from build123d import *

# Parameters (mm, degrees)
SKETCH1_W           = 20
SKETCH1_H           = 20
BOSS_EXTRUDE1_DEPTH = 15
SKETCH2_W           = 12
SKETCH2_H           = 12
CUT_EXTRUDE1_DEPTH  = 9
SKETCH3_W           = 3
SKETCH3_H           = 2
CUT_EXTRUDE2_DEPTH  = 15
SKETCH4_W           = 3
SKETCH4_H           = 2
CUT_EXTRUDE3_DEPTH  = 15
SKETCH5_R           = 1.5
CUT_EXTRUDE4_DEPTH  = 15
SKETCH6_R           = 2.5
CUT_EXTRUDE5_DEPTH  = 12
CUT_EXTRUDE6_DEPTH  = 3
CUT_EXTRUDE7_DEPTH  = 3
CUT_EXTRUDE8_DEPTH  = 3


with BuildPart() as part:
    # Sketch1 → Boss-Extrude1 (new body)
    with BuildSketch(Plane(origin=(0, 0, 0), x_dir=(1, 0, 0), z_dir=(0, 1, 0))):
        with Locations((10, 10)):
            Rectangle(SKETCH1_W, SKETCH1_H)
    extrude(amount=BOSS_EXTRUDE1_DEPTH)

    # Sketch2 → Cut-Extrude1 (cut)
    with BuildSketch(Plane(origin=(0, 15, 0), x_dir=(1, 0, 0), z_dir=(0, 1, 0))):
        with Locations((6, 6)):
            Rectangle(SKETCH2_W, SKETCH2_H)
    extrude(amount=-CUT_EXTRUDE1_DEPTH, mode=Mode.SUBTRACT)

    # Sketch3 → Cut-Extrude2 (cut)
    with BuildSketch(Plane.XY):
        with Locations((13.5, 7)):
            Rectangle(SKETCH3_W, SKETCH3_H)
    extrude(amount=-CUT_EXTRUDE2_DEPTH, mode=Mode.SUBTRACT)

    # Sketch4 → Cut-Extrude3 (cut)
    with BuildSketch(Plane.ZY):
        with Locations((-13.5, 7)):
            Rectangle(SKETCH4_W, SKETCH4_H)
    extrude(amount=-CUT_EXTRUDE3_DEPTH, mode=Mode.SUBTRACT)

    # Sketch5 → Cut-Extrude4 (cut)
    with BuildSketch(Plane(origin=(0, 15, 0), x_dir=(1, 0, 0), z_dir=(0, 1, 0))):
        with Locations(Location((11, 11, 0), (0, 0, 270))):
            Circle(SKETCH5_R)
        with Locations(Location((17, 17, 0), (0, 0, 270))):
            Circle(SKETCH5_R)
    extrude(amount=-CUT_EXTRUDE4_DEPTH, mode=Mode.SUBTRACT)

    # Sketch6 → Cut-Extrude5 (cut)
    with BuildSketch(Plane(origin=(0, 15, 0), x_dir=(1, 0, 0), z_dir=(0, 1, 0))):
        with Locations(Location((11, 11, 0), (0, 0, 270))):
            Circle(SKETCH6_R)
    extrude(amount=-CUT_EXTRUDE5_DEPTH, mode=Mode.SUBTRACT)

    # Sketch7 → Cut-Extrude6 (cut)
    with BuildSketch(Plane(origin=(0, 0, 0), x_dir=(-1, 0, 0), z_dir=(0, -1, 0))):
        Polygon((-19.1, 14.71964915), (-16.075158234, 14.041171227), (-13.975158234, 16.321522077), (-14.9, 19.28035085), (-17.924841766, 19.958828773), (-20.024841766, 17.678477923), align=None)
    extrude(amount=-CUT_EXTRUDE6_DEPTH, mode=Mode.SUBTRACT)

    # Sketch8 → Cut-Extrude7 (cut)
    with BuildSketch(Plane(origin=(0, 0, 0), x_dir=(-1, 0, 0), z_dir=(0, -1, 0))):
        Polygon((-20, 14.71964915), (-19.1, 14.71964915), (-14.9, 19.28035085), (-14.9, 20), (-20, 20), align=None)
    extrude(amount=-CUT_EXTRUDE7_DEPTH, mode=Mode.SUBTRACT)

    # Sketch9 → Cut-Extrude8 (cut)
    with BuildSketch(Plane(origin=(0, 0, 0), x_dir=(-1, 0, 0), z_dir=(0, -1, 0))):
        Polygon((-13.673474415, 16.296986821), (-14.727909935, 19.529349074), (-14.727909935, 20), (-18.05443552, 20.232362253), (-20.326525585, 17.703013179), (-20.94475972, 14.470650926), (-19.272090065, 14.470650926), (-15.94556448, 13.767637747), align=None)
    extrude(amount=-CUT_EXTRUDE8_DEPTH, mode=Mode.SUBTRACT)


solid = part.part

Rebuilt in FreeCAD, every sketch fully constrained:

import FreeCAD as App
import Part
import Sketcher
from FreeCAD import Vector
Q = App.Units.Quantity

doc = App.newDocument("Part")
params = doc.addObject("Spreadsheet::Sheet", "Params")
for row, (alias, value) in enumerate([
    ("sketch1_width", "20 mm"),
    ("pad1_length", "15 mm"),
    ("sketch2_width", "12 mm"),
    ("pocket1_length", "9 mm"),
    ("sketch3_width", "3 mm"),
    ("sketch3_height", "2 mm"),
    ("pocket2_length", "15 mm"),
    ("sketch4_width", "2 mm"),
    ("sketch4_height", "3 mm"),
    ("pocket3_length", "15 mm"),
    ("sketch5_diameter", "3 mm"),
    ("pocket4_length", "15 mm"),
    ("sketch6_diameter", "5 mm"),
    ("pocket5_length", "12 mm"),
    ("sketch7_length", "3.1 mm"),
    ("pocket6_length", "3 mm"),
    ("sketch8_width", "0.9 mm"),
    ("sketch8_width2", "5.1 mm"),
    ("sketch8_length", "6.2 mm"),
    ("pocket7_length", "3 mm"),
    ("sketch9_length", "3.4 mm"),
    ("pocket8_length", "3 mm"),
], start=1):
    params.set(f"A{row}", alias)
    params.set(f"B{row}", "=" + value)
    params.setAlias(f"B{row}", alias)

body = doc.addObject("PartDesign::Body", "Body")

sketch1 = body.newObject("Sketcher::SketchObject", "Sketch")
sketch1.AttachmentSupport = (doc.getObject("XZ_Plane"), [""])
sketch1.MapMode = "FlatFace"
sketch1.addGeometry(Part.LineSegment(Vector(0, -20, 0), Vector(0, 0, 0)), False)
sketch1.addGeometry(Part.LineSegment(Vector(0, 0, 0), Vector(20, 0, 0)), False)
sketch1.addGeometry(Part.LineSegment(Vector(20, 0, 0), Vector(20, -20, 0)), False)
sketch1.addGeometry(Part.LineSegment(Vector(20, -20, 0), Vector(0, -20, 0)), False)
sketch1.addConstraint(Sketcher.Constraint("Coincident", 0, 2, 1, 1))
sketch1.addConstraint(Sketcher.Constraint("Coincident", 1, 2, 2, 1))
sketch1.addConstraint(Sketcher.Constraint("Coincident", 2, 2, 3, 1))
sketch1.addConstraint(Sketcher.Constraint("Coincident", 3, 2, 0, 1))
sketch1.addConstraint(Sketcher.Constraint("Vertical", 0))
sketch1.addConstraint(Sketcher.Constraint("Horizontal", 1))
sketch1.addConstraint(Sketcher.Constraint("Vertical", 2))
sketch1.addConstraint(Sketcher.Constraint("Horizontal", 3))
sketch1.addConstraint(Sketcher.Constraint("Coincident", 0, 2, -1, 1))
sketch1.addConstraint(Sketcher.Constraint("Equal", 3, 0))
sketch1.addConstraint(Sketcher.Constraint("DistanceX", 1, 1, 1, 2, Q("20 mm")))
sketch1.setExpression("Constraints[10]", "Params.sketch1_width")
pad1 = body.newObject("PartDesign::Pad", "Pad")
pad1.Profile = sketch1
pad1.setExpression("Length", "Params.pad1_length")
pad1.Reversed = True

sketch2 = body.newObject("Sketcher::SketchObject", "Sketch001")
sketch2.AttachmentSupport = (doc.getObject("XZ_Plane"), [""])
sketch2.MapMode = "FlatFace"
sketch2.AttachmentOffset = App.Placement(Vector(0, 0, -15), App.Rotation())
sketch2.addGeometry(Part.LineSegment(Vector(0, -12, 0), Vector(0, 0, 0)), False)
sketch2.addGeometry(Part.LineSegment(Vector(0, 0, 0), Vector(12, 0, 0)), False)
sketch2.addGeometry(Part.LineSegment(Vector(12, 0, 0), Vector(12, -12, 0)), False)
sketch2.addGeometry(Part.LineSegment(Vector(12, -12, 0), Vector(0, -12, 0)), False)
sketch2.addConstraint(Sketcher.Constraint("Coincident", 0, 2, 1, 1))
sketch2.addConstraint(Sketcher.Constraint("Coincident", 1, 2, 2, 1))
sketch2.addConstraint(Sketcher.Constraint("Coincident", 2, 2, 3, 1))
sketch2.addConstraint(Sketcher.Constraint("Coincident", 3, 2, 0, 1))
sketch2.addConstraint(Sketcher.Constraint("Vertical", 0))
sketch2.addConstraint(Sketcher.Constraint("Horizontal", 1))
sketch2.addConstraint(Sketcher.Constraint("Vertical", 2))
sketch2.addConstraint(Sketcher.Constraint("Horizontal", 3))
sketch2.addConstraint(Sketcher.Constraint("Coincident", 0, 2, -1, 1))
sketch2.addConstraint(Sketcher.Constraint("Equal", 3, 0))
sketch2.addConstraint(Sketcher.Constraint("DistanceX", 1, 1, 1, 2, Q("12 mm")))
sketch2.setExpression("Constraints[10]", "Params.sketch2_width")
pocket1 = body.newObject("PartDesign::Pocket", "Pocket")
pocket1.Profile = sketch2
pocket1.setExpression("Length", "Params.pocket1_length")
pocket1.Reversed = True

sketch3 = body.newObject("Sketcher::SketchObject", "Sketch002")
sketch3.AttachmentSupport = (doc.getObject("XY_Plane"), [""])
sketch3.MapMode = "FlatFace"
sketch3.addGeometry(Part.LineSegment(Vector(12, 8, 0), Vector(12, 6, 0)), False)
sketch3.addGeometry(Part.LineSegment(Vector(12, 6, 0), Vector(15, 6, 0)), False)
sketch3.addGeometry(Part.LineSegment(Vector(15, 6, 0), Vector(15, 8, 0)), False)
sketch3.addGeometry(Part.LineSegment(Vector(15, 8, 0), Vector(12, 8, 0)), False)
sketch3.addConstraint(Sketcher.Constraint("Coincident", 0, 2, 1, 1))
sketch3.addConstraint(Sketcher.Constraint("Coincident", 1, 2, 2, 1))
sketch3.addConstraint(Sketcher.Constraint("Coincident", 2, 2, 3, 1))
sketch3.addConstraint(Sketcher.Constraint("Coincident", 3, 2, 0, 1))
sketch3.addConstraint(Sketcher.Constraint("Vertical", 0))
sketch3.addConstraint(Sketcher.Constraint("Horizontal", 1))
sketch3.addConstraint(Sketcher.Constraint("Vertical", 2))
sketch3.addConstraint(Sketcher.Constraint("Horizontal", 3))
sketch3.addConstraint(Sketcher.Constraint("DistanceX", 1, 1, 1, 2, Q("3 mm")))
sketch3.addConstraint(Sketcher.Constraint("DistanceY", 0, 2, 0, 1, Q("2 mm")))
sketch3.addConstraint(Sketcher.Constraint("DistanceX", -1, 1, 0, 2, Q("12 mm")))
sketch3.addConstraint(Sketcher.Constraint("DistanceY", -1, 1, 0, 2, Q("6 mm")))
sketch3.setExpression("Constraints[8]", "Params.sketch3_width")
sketch3.setExpression("Constraints[9]", "Params.sketch3_height")
pocket2 = body.newObject("PartDesign::Pocket", "Pocket001")
pocket2.Profile = sketch3
pocket2.setExpression("Length", "Params.pocket2_length")

sketch4 = body.newObject("Sketcher::SketchObject", "Sketch003")
sketch4.AttachmentSupport = (doc.getObject("YZ_Plane"), [""])
sketch4.MapMode = "FlatFace"
sketch4.addGeometry(Part.LineSegment(Vector(8, -15, 0), Vector(6, -15, 0)), False)
sketch4.addGeometry(Part.LineSegment(Vector(6, -15, 0), Vector(6, -12, 0)), False)
sketch4.addGeometry(Part.LineSegment(Vector(6, -12, 0), Vector(8, -12, 0)), False)
sketch4.addGeometry(Part.LineSegment(Vector(8, -12, 0), Vector(8, -15, 0)), False)
sketch4.addConstraint(Sketcher.Constraint("Coincident", 0, 2, 1, 1))
sketch4.addConstraint(Sketcher.Constraint("Coincident", 1, 2, 2, 1))
sketch4.addConstraint(Sketcher.Constraint("Coincident", 2, 2, 3, 1))
sketch4.addConstraint(Sketcher.Constraint("Coincident", 3, 2, 0, 1))
sketch4.addConstraint(Sketcher.Constraint("Horizontal", 0))
sketch4.addConstraint(Sketcher.Constraint("Vertical", 1))
sketch4.addConstraint(Sketcher.Constraint("Horizontal", 2))
sketch4.addConstraint(Sketcher.Constraint("Vertical", 3))
sketch4.addConstraint(Sketcher.Constraint("DistanceX", 0, 2, 0, 1, Q("2 mm")))
sketch4.addConstraint(Sketcher.Constraint("DistanceY", 1, 1, 1, 2, Q("3 mm")))
sketch4.addConstraint(Sketcher.Constraint("DistanceX", -1, 1, 0, 2, Q("6 mm")))
sketch4.addConstraint(Sketcher.Constraint("DistanceY", 0, 2, -1, 1, Q("15 mm")))
sketch4.setExpression("Constraints[8]", "Params.sketch4_width")
sketch4.setExpression("Constraints[9]", "Params.sketch4_height")
pocket3 = body.newObject("PartDesign::Pocket", "Pocket002")
pocket3.Profile = sketch4
pocket3.setExpression("Length", "Params.pocket3_length")
pocket3.Reversed = True

sketch5 = body.newObject("Sketcher::SketchObject", "Sketch004")
sketch5.AttachmentSupport = (doc.getObject("XZ_Plane"), [""])
sketch5.MapMode = "FlatFace"
sketch5.AttachmentOffset = App.Placement(Vector(0, 0, -15), App.Rotation())
sketch5.addGeometry(Part.Circle(Vector(11, -11, 0), Vector(0, 0, 1), 1.5), False)
sketch5.addGeometry(Part.Circle(Vector(17, -17, 0), Vector(0, 0, 1), 1.5), False)
sketch5.addConstraint(Sketcher.Constraint("Equal", 0, 1))
sketch5.addConstraint(Sketcher.Constraint("Diameter", 0, Q("3 mm")))
sketch5.addConstraint(Sketcher.Constraint("DistanceX", -1, 1, 0, 3, Q("11 mm")))
sketch5.addConstraint(Sketcher.Constraint("DistanceY", 0, 3, -1, 1, Q("11 mm")))
sketch5.addConstraint(Sketcher.Constraint("DistanceX", -1, 1, 1, 3, Q("17 mm")))
sketch5.addConstraint(Sketcher.Constraint("DistanceY", 1, 3, -1, 1, Q("17 mm")))
sketch5.setExpression("Constraints[1]", "Params.sketch5_diameter")
pocket4 = body.newObject("PartDesign::Pocket", "Pocket003")
pocket4.Profile = sketch5
pocket4.setExpression("Length", "Params.pocket4_length")
pocket4.Reversed = True

sketch6 = body.newObject("Sketcher::SketchObject", "Sketch005")
sketch6.AttachmentSupport = (doc.getObject("XZ_Plane"), [""])
sketch6.MapMode = "FlatFace"
sketch6.AttachmentOffset = App.Placement(Vector(0, 0, -15), App.Rotation())
sketch6.addGeometry(Part.Circle(Vector(11, -11, 0), Vector(0, 0, 1), 2.5), False)
sketch6.addConstraint(Sketcher.Constraint("Diameter", 0, Q("5 mm")))
sketch6.addConstraint(Sketcher.Constraint("DistanceX", -1, 1, 0, 3, Q("11 mm")))
sketch6.addConstraint(Sketcher.Constraint("DistanceY", 0, 3, -1, 1, Q("11 mm")))
sketch6.setExpression("Constraints[0]", "Params.sketch6_diameter")
pocket5 = body.newObject("PartDesign::Pocket", "Pocket004")
pocket5.Profile = sketch6
pocket5.setExpression("Length", "Params.pocket5_length")
pocket5.Reversed = True

sketch7 = body.newObject("Sketcher::SketchObject", "Sketch006")
sketch7.AttachmentSupport = (doc.getObject("XZ_Plane"), [""])
sketch7.MapMode = "FlatFace"
sketch7.addGeometry(Part.LineSegment(Vector(19.1, -14.7, 0), Vector(16.1, -14, 0)), False)
sketch7.addGeometry(Part.LineSegment(Vector(16.1, -14, 0), Vector(14, -16.3, 0)), False)
sketch7.addGeometry(Part.LineSegment(Vector(14, -16.3, 0), Vector(14.9, -19.3, 0)), False)
sketch7.addGeometry(Part.LineSegment(Vector(14.9, -19.3, 0), Vector(17.9, -20, 0)), False)
sketch7.addGeometry(Part.LineSegment(Vector(17.9, -20, 0), Vector(20, -17.7, 0)), False)
sketch7.addGeometry(Part.LineSegment(Vector(20, -17.7, 0), Vector(19.1, -14.7, 0)), False)
sketch7.addConstraint(Sketcher.Constraint("Coincident", 0, 2, 1, 1))
sketch7.addConstraint(Sketcher.Constraint("Coincident", 1, 2, 2, 1))
sketch7.addConstraint(Sketcher.Constraint("Coincident", 2, 2, 3, 1))
sketch7.addConstraint(Sketcher.Constraint("Coincident", 3, 2, 4, 1))
sketch7.addConstraint(Sketcher.Constraint("Coincident", 4, 2, 5, 1))
sketch7.addConstraint(Sketcher.Constraint("Coincident", 5, 2, 0, 1))
sketch7.addConstraint(Sketcher.Constraint("Parallel", 0, 3))
sketch7.addConstraint(Sketcher.Constraint("Parallel", 1, 4))
sketch7.addConstraint(Sketcher.Constraint("Parallel", 2, 5))
sketch7.addConstraint(Sketcher.Constraint("Equal", 0, 1))
sketch7.addConstraint(Sketcher.Constraint("Equal", 1, 2))
sketch7.addConstraint(Sketcher.Constraint("Equal", 2, 3))
sketch7.addConstraint(Sketcher.Constraint("Distance", 0, Q("3.1 mm")))
sketch7.addConstraint(Sketcher.Constraint("DistanceX", -1, 1, 2, 2, Q("14.9 mm")))
sketch7.addConstraint(Sketcher.Constraint("DistanceX", -1, 1, 5, 2, Q("19.1 mm")))
sketch7.addConstraint(Sketcher.Constraint("DistanceX", 1, 2, 0, 2, Q("2.1 mm")))
sketch7.addConstraint(Sketcher.Constraint("DistanceY", 2, 2, 5, 2, Q("4.560702 mm")))
sketch7.addConstraint(Sketcher.Constraint("DistanceY", 0, 2, -1, 1, Q("14.041171 mm")))
sketch7.setExpression("Constraints[12]", "Params.sketch7_length")
pocket6 = body.newObject("PartDesign::Pocket", "Pocket005")
pocket6.Profile = sketch7
pocket6.setExpression("Length", "Params.pocket6_length")

sketch8 = body.newObject("Sketcher::SketchObject", "Sketch007")
sketch8.AttachmentSupport = (doc.getObject("XZ_Plane"), [""])
sketch8.MapMode = "FlatFace"
sketch8.addGeometry(Part.LineSegment(Vector(20, -14.7, 0), Vector(19.1, -14.7, 0)), False)
sketch8.addGeometry(Part.LineSegment(Vector(19.1, -14.7, 0), Vector(14.9, -19.3, 0)), False)
sketch8.addGeometry(Part.LineSegment(Vector(14.9, -19.3, 0), Vector(14.9, -20, 0)), False)
sketch8.addGeometry(Part.LineSegment(Vector(14.9, -20, 0), Vector(20, -20, 0)), False)
sketch8.addGeometry(Part.LineSegment(Vector(20, -20, 0), Vector(20, -14.7, 0)), False)
sketch8.addConstraint(Sketcher.Constraint("Coincident", 0, 2, 1, 1))
sketch8.addConstraint(Sketcher.Constraint("Coincident", 1, 2, 2, 1))
sketch8.addConstraint(Sketcher.Constraint("Coincident", 2, 2, 3, 1))
sketch8.addConstraint(Sketcher.Constraint("Coincident", 3, 2, 4, 1))
sketch8.addConstraint(Sketcher.Constraint("Coincident", 4, 2, 0, 1))
sketch8.addConstraint(Sketcher.Constraint("Horizontal", 0))
sketch8.addConstraint(Sketcher.Constraint("Vertical", 2))
sketch8.addConstraint(Sketcher.Constraint("Horizontal", 3))
sketch8.addConstraint(Sketcher.Constraint("Vertical", 4))
sketch8.addConstraint(Sketcher.Constraint("DistanceX", 0, 2, 0, 1, Q("0.9 mm")))
sketch8.addConstraint(Sketcher.Constraint("DistanceX", 3, 1, 3, 2, Q("5.1 mm")))
sketch8.addConstraint(Sketcher.Constraint("DistanceY", 2, 2, -1, 1, Q("20 mm")))
sketch8.addConstraint(Sketcher.Constraint("DistanceX", -1, 1, 3, 2, Q("20 mm")))
sketch8.addConstraint(Sketcher.Constraint("Distance", 1, Q("6.2 mm")))
sketch8.addConstraint(Sketcher.Constraint("DistanceY", 2, 2, 2, 1, Q("0.719649 mm")))
sketch8.setExpression("Constraints[9]", "Params.sketch8_width")
sketch8.setExpression("Constraints[10]", "Params.sketch8_width2")
sketch8.setExpression("Constraints[13]", "Params.sketch8_length")
pocket7 = body.newObject("PartDesign::Pocket", "Pocket006")
pocket7.Profile = sketch8
pocket7.setExpression("Length", "Params.pocket7_length")

sketch9 = body.newObject("Sketcher::SketchObject", "Sketch008")
sketch9.AttachmentSupport = (doc.getObject("XZ_Plane"), [""])
sketch9.MapMode = "FlatFace"
sketch9.addGeometry(Part.LineSegment(Vector(13.67, -16.3, 0), Vector(14.73, -19.53, 0)), False)
sketch9.addGeometry(Part.LineSegment(Vector(14.73, -19.53, 0), Vector(14.73, -20, 0)), False)
sketch9.addGeometry(Part.LineSegment(Vector(14.73, -20, 0), Vector(18.05, -20.23, 0)), False)
sketch9.addGeometry(Part.LineSegment(Vector(18.05, -20.23, 0), Vector(20.33, -17.7, 0)), False)
sketch9.addGeometry(Part.LineSegment(Vector(20.33, -17.7, 0), Vector(20.94, -14.47, 0)), False)
sketch9.addGeometry(Part.LineSegment(Vector(20.94, -14.47, 0), Vector(19.27, -14.47, 0)), False)
sketch9.addGeometry(Part.LineSegment(Vector(19.27, -14.47, 0), Vector(15.95, -13.77, 0)), False)
sketch9.addGeometry(Part.LineSegment(Vector(15.95, -13.77, 0), Vector(13.67, -16.3, 0)), False)
sketch9.addConstraint(Sketcher.Constraint("Coincident", 0, 2, 1, 1))
sketch9.addConstraint(Sketcher.Constraint("Coincident", 1, 2, 2, 1))
sketch9.addConstraint(Sketcher.Constraint("Coincident", 2, 2, 3, 1))
sketch9.addConstraint(Sketcher.Constraint("Coincident", 3, 2, 4, 1))
sketch9.addConstraint(Sketcher.Constraint("Coincident", 4, 2, 5, 1))
sketch9.addConstraint(Sketcher.Constraint("Coincident", 5, 2, 6, 1))
sketch9.addConstraint(Sketcher.Constraint("Coincident", 6, 2, 7, 1))
sketch9.addConstraint(Sketcher.Constraint("Coincident", 7, 2, 0, 1))
sketch9.addConstraint(Sketcher.Constraint("Vertical", 1))
sketch9.addConstraint(Sketcher.Constraint("Horizontal", 5))
sketch9.addConstraint(Sketcher.Constraint("Parallel", 3, 7))
sketch9.addConstraint(Sketcher.Constraint("Equal", 0, 3))
sketch9.addConstraint(Sketcher.Constraint("Equal", 3, 6))
sketch9.addConstraint(Sketcher.Constraint("Equal", 6, 7))
sketch9.addConstraint(Sketcher.Constraint("DistanceY", 1, 2, -1, 1, Q("20 mm")))
sketch9.addConstraint(Sketcher.Constraint("Distance", 0, Q("3.4 mm")))
sketch9.addConstraint(Sketcher.Constraint("DistanceX", 5, 2, 5, 1, Q("1.67267 mm")))
sketch9.addConstraint(Sketcher.Constraint("DistanceY", 1, 2, 1, 1, Q("0.470651 mm")))
sketch9.addConstraint(Sketcher.Constraint("DistanceY", 0, 2, 4, 2, Q("5.058698 mm")))
sketch9.addConstraint(Sketcher.Constraint("Distance", 2, Q("3.334631 mm")))
sketch9.addConstraint(Sketcher.Constraint("DistanceX", -1, 1, 0, 2, Q("14.72791 mm")))
sketch9.addConstraint(Sketcher.Constraint("DistanceX", -1, 1, 4, 2, Q("20.94476 mm")))
sketch9.addConstraint(Sketcher.Constraint("DistanceX", 2, 2, 3, 2, Q("2.27209 mm")))
sketch9.addConstraint(Sketcher.Constraint("DistanceY", 2, 2, 4, 2, Q("5.761711 mm")))
sketch9.setExpression("Constraints[15]", "Params.sketch9_length")
pocket8 = body.newObject("PartDesign::Pocket", "Pocket007")
pocket8.Profile = sketch9
pocket8.setExpression("Length", "Params.pocket8_length")

doc.recompute()
